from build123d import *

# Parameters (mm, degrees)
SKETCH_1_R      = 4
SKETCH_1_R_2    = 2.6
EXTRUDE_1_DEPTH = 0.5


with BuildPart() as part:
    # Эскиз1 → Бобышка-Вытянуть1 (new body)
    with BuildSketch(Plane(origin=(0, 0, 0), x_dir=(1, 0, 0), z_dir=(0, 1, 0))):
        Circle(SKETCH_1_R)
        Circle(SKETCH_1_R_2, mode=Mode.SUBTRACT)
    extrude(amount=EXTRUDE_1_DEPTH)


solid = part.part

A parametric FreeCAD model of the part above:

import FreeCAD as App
import Part
import Sketcher
from FreeCAD import Vector
Q = App.Units.Quantity

doc = App.newDocument("Part")
body = doc.addObject("PartDesign::Body", "Body")

# Sketch on XZ plane
sketch1 = body.newObject("Sketcher::SketchObject", "Sketch")
sketch1.AttachmentSupport = (doc.getObject("XZ_Plane"), [""])
sketch1.MapMode = "FlatFace"
sketch1.addGeometry(Part.Circle(Vector(0, 0, 0), Vector(0, 0, 1), 4), False)
sketch1.addGeometry(Part.Circle(Vector(0, 0, 0), Vector(0, 0, 1), 2.6), False)
sketch1.addConstraint(Sketcher.Constraint("Coincident", 0, 3, -1, 1))
sketch1.addConstraint(Sketcher.Constraint("Coincident", 1, 3, -1, 1))
sketch1.addConstraint(Sketcher.Constraint("Diameter", 0, Q("8 mm")))
sketch1.addConstraint(Sketcher.Constraint("Diameter", 1, Q("5.2 mm")))
pad1 = body.newObject("PartDesign::Pad", "Pad")
pad1.Profile = sketch1
pad1.Length = 0.5
pad1.Reversed = True

doc.recompute()
